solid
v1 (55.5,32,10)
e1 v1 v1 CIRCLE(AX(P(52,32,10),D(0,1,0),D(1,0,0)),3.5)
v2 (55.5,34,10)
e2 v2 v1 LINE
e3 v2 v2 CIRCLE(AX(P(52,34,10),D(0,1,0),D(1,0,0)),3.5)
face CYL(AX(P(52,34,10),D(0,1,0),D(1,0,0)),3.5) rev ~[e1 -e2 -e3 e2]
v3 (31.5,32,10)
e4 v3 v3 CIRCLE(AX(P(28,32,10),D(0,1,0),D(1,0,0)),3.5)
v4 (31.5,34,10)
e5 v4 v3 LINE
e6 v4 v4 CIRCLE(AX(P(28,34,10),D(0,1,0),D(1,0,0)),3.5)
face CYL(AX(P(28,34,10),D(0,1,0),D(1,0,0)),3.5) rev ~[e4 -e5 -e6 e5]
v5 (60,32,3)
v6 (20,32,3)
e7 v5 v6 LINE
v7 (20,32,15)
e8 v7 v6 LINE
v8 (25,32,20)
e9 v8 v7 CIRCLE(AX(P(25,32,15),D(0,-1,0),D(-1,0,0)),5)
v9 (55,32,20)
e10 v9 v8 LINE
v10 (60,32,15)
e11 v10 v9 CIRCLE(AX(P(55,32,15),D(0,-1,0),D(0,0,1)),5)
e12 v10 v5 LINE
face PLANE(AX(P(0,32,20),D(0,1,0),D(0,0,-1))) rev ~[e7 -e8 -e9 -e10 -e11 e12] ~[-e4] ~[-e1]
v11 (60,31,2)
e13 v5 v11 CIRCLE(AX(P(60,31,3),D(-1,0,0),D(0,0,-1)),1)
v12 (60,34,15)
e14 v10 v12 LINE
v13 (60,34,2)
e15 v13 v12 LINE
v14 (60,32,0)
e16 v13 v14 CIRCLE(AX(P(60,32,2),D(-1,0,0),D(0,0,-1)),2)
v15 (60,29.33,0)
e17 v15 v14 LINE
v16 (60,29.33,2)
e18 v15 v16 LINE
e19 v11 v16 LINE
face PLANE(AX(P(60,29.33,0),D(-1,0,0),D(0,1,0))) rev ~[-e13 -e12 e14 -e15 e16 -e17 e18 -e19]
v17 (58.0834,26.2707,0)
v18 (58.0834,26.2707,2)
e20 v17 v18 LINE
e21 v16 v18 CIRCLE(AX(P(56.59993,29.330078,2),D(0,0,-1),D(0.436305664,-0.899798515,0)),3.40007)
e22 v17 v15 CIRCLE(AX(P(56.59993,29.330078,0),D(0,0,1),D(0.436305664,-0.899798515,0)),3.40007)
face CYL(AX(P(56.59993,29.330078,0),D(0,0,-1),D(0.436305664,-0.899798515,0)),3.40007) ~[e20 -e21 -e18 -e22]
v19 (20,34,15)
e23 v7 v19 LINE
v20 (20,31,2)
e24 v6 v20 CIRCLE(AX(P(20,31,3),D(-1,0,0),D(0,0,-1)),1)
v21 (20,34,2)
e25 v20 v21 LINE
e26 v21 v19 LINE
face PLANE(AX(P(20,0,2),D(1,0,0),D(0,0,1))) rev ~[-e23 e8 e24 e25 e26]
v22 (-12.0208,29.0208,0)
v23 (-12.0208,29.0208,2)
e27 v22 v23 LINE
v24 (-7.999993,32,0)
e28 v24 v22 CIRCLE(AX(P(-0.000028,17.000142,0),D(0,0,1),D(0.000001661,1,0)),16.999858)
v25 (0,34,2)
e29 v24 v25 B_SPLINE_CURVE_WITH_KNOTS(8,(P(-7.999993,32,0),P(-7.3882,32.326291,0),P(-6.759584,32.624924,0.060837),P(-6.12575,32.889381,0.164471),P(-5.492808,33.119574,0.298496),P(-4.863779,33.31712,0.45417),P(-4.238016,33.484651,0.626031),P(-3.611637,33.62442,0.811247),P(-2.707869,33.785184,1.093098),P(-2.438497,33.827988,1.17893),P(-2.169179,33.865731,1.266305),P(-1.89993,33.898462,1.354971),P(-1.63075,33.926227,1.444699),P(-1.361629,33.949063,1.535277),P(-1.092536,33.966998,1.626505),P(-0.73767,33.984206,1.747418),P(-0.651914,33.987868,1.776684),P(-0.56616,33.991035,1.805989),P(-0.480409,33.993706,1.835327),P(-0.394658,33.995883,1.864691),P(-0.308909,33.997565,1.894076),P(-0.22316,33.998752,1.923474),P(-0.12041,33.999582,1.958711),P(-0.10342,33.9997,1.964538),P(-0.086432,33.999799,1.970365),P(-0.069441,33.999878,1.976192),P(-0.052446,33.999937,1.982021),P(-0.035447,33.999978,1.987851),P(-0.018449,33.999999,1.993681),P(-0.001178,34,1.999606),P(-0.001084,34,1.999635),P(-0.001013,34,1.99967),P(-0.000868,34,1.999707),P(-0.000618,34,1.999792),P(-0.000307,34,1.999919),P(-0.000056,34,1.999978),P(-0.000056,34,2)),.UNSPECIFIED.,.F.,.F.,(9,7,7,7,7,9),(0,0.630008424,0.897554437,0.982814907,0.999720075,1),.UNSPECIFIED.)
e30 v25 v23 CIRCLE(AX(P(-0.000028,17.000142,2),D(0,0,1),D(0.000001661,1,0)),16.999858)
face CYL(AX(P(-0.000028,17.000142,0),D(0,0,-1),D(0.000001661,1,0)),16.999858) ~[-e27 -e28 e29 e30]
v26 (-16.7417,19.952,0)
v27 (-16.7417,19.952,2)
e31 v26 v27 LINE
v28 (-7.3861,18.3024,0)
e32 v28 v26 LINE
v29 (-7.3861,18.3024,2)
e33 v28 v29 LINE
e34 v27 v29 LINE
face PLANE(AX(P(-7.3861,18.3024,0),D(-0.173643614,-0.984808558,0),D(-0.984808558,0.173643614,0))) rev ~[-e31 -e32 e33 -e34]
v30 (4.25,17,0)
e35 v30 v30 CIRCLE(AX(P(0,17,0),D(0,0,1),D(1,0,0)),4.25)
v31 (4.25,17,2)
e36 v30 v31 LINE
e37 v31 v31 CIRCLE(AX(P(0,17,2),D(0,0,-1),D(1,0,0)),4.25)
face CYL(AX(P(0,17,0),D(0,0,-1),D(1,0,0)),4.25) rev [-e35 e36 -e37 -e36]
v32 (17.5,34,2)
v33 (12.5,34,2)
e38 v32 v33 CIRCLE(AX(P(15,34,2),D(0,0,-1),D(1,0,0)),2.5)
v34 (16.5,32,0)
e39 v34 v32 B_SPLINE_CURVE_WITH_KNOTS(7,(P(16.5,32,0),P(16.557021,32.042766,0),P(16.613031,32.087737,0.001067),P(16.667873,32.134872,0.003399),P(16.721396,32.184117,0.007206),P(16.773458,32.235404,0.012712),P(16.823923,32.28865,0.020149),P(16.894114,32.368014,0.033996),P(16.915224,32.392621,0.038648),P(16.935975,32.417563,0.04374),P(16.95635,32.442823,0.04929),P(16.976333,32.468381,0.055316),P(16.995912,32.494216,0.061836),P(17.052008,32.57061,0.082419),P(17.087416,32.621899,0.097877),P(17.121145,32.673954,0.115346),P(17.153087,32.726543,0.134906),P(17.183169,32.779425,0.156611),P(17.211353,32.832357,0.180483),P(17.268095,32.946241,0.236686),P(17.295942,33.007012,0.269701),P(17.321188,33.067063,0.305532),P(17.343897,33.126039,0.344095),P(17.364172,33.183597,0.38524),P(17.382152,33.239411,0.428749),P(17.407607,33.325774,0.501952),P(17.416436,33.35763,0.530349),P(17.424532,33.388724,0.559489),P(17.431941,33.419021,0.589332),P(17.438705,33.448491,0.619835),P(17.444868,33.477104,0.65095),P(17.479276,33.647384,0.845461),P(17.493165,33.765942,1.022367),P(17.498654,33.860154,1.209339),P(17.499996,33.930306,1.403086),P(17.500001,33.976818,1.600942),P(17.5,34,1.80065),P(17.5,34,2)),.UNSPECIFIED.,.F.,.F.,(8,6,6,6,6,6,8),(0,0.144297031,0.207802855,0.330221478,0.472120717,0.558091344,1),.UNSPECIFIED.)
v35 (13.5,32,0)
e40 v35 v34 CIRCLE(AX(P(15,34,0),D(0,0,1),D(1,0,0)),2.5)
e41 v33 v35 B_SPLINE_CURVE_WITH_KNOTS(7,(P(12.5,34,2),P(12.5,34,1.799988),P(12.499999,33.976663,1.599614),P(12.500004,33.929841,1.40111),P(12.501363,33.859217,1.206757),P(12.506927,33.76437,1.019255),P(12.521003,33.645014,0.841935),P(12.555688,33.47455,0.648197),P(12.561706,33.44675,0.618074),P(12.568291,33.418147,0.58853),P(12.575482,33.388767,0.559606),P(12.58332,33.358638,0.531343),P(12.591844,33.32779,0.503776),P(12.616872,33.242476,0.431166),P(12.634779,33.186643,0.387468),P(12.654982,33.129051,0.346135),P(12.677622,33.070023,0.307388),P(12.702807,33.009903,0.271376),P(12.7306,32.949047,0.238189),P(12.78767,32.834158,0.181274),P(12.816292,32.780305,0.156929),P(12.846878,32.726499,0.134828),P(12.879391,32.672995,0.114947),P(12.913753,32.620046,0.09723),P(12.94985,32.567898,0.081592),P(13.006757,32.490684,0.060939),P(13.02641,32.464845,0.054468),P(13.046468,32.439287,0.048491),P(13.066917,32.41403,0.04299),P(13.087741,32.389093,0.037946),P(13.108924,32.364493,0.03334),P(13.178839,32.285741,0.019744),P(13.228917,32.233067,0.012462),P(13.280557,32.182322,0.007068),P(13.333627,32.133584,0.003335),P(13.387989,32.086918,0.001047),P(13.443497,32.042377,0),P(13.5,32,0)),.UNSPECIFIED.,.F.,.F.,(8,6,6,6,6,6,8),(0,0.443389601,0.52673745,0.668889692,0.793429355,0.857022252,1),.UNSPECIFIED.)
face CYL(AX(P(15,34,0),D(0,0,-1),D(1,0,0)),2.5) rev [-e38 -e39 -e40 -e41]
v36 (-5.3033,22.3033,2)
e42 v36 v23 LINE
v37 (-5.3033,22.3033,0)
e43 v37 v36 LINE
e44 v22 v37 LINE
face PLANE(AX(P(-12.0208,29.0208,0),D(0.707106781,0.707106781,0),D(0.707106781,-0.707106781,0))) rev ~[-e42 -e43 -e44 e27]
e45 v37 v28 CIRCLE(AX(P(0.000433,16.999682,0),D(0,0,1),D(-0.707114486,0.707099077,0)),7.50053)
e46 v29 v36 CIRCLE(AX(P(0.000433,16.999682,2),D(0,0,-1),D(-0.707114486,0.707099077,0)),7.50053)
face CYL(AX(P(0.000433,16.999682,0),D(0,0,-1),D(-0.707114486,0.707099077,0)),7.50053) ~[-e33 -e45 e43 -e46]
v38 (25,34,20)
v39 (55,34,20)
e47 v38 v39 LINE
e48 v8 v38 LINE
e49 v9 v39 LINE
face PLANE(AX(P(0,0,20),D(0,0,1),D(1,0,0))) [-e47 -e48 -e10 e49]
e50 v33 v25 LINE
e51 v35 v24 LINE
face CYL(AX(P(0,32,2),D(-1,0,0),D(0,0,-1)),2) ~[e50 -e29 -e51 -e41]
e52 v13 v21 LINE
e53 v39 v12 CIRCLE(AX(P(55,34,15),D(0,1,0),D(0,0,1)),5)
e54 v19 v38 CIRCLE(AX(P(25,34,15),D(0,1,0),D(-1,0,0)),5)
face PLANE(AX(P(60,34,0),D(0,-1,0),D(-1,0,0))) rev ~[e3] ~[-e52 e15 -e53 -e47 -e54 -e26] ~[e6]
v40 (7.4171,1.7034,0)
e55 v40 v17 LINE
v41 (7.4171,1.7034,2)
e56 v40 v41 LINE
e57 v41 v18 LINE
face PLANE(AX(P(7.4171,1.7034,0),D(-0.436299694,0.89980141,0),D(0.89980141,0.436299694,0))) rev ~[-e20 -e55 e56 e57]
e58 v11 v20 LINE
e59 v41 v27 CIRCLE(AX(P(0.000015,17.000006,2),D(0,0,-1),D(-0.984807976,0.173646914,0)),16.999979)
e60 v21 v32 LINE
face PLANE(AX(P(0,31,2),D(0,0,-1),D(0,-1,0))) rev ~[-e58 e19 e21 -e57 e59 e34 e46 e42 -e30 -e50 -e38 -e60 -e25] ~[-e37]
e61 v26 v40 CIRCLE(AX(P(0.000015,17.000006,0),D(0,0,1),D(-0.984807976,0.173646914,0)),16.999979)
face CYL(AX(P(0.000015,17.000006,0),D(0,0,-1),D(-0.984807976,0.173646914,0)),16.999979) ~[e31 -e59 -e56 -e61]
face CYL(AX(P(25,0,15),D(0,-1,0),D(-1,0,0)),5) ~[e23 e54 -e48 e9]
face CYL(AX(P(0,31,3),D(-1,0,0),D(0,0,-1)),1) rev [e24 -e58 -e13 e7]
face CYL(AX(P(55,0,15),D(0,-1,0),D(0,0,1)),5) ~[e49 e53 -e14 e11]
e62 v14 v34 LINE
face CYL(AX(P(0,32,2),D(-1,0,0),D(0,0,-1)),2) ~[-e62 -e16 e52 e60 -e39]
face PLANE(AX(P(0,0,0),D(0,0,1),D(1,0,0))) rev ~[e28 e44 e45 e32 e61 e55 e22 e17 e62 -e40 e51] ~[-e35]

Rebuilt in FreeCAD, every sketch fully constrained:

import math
import FreeCAD as App
import Part
import Sketcher
Q = App.Units.Quantity

doc = App.newDocument("Part")
body = doc.addObject("PartDesign::Body", "Body")

# Sketch on XY plane
sketch1 = body.newObject("Sketcher::SketchObject", "Sketch")
sketch1.AttachmentSupport = (doc.getObject("XY_Plane"), [""])
sketch1.MapMode = "FlatFace"
sketch1.addGeometry(Part.LineSegment(App.Vector(-7.4, 18.3, 0), App.Vector(-16.7, 20, 0)), False)
sketch1.addGeometry(Part.ArcOfCircle(Part.Circle(App.Vector(0, 17, 0), App.Vector(0, 0, 1), 17), math.radians(170), math.radians(296)), False)
sketch1.addGeometry(Part.LineSegment(App.Vector(7.4, 1.7, 0), App.Vector(58.1, 26.3, 0)), False)
sketch1.addGeometry(Part.ArcOfCircle(Part.Circle(App.Vector(56.6, 29.3, 0), App.Vector(0, 0, 1), 3.4), math.radians(-64), math.radians(0)), False)
sketch1.addGeometry(Part.LineSegment(App.Vector(60, 29.3, 0), App.Vector(60, 34, 0)), False)
sketch1.addGeometry(Part.LineSegment(App.Vector(60, 34, 0), App.Vector(0, 34, 0)), False)
sketch1.addGeometry(Part.ArcOfCircle(Part.Circle(App.Vector(0, 17, 0), App.Vector(0, 0, 1), 17), math.radians(90), math.radians(135)), False)
sketch1.addGeometry(Part.LineSegment(App.Vector(-12, 29, 0), App.Vector(-5.3, 22.3, 0)), False)
sketch1.addGeometry(Part.ArcOfCircle(Part.Circle(App.Vector(0, 17, 0), App.Vector(0, 0, 1), 7.5), math.radians(135), math.radians(170)), False)
sketch1.addGeometry(Part.Circle(App.Vector(0, 17, 0), App.Vector(0, 0, 1), 4.2), False)
sketch1.addConstraint(Sketcher.Constraint("Coincident", 0, 2, 1, 1))
sketch1.addConstraint(Sketcher.Constraint("Tangent", 1, 2, 2, 1))
sketch1.addConstraint(Sketcher.Constraint("Tangent", 2, 2, 3, 1))
sketch1.addConstraint(Sketcher.Constraint("Tangent", 3, 2, 4, 1))
sketch1.addConstraint(Sketcher.Constraint("Coincident", 4, 2, 5, 1))
sketch1.addConstraint(Sketcher.Constraint("Tangent", 5, 2, 6, 1))
sketch1.addConstraint(Sketcher.Constraint("Coincident", 6, 2, 7, 1))
sketch1.addConstraint(Sketcher.Constraint("Coincident", 7, 2, 8, 1))
sketch1.addConstraint(Sketcher.Constraint("Coincident", 8, 2, 0, 1))
sketch1.addConstraint(Sketcher.Constraint("Vertical", 4))
sketch1.addConstraint(Sketcher.Constraint("Horizontal", 5))
sketch1.addConstraint(Sketcher.Constraint("Coincident", 6, 3, 1, 3))
sketch1.addConstraint(Sketcher.Constraint("Coincident", 8, 3, 1, 3))
sketch1.addConstraint(Sketcher.Constraint("Coincident", 9, 3, 1, 3))
sketch1.addConstraint(Sketcher.Constraint("Equal", 1, 6))
sketch1.addConstraint(Sketcher.Constraint("PointOnObject", 1, 3, -2))
sketch1.addConstraint(Sketcher.Constraint("Radius", 1, Q("17 mm")))
sketch1.addConstraint(Sketcher.Constraint("Diameter", 9, Q("8.5 mm")))
sketch1.addConstraint(Sketcher.Constraint("Radius", 3, Q("3.4 mm")))
sketch1.addConstraint(Sketcher.Constraint("Radius", 8, Q("7.5 mm")))
sketch1.addConstraint(Sketcher.Constraint("DistanceX", 5, 2, 5, 1, Q("60 mm")))
sketch1.addConstraint(Sketcher.Constraint("Angle", 0, Q("170.0003 deg")))
sketch1.addConstraint(Sketcher.Constraint("Angle", 7, Q("-45 deg")))
sketch1.addConstraint(Sketcher.Constraint("DistanceY", -1, 1, 1, 3, Q("17 mm")))
sketch1.addConstraint(Sketcher.Constraint("DistanceY", 4, 1, 4, 2, Q("4.67 mm")))
sketch1.addConstraint(Sketcher.Constraint("DistanceY", -1, 1, 0, 2, Q("19.952 mm")))
sketch1.addConstraint(Sketcher.Constraint("DistanceX", 0, 2, 6, 2, Q("4.721 mm")))
pad1 = body.newObject("PartDesign::Pad", "Pad")
pad1.Profile = sketch1
pad1.Length = 20

# Sketch on YZ plane
sketch2 = body.newObject("Sketcher::SketchObject", "Sketch001")
sketch2.AttachmentSupport = (doc.getObject("YZ_Plane"), [""])
sketch2.MapMode = "FlatFace"
sketch2.addGeometry(Part.LineSegment(App.Vector(39, -5, 0), App.Vector(39, 25, 0)), False)
sketch2.addGeometry(Part.LineSegment(App.Vector(39, 25, 0), App.Vector(-5, 25, 0)), False)
sketch2.addGeometry(Part.LineSegment(App.Vector(-5, 25, 0), App.Vector(-5, -5, 0)), False)
sketch2.addGeometry(Part.LineSegment(App.Vector(-5, -5, 0), App.Vector(39, -5, 0)), False)
sketch2.addGeometry(Part.LineSegment(App.Vector(32, 20, 0), App.Vector(34, 20, 0)), False)
sketch2.addGeometry(Part.LineSegment(App.Vector(34, 20, 0), App.Vector(34, 2, 0)), False)
sketch2.addGeometry(Part.ArcOfCircle(Part.Circle(App.Vector(32, 2, 0), App.Vector(0, 0, 1), 2), math.radians(-90), math.radians(0)), False)
sketch2.addGeometry(Part.LineSegment(App.Vector(32, 0, 0), App.Vector(0, 0, 0)), False)
sketch2.addGeometry(Part.LineSegment(App.Vector(0, 0, 0), App.Vector(0, 2, 0)), False)
sketch2.addGeometry(Part.LineSegment(App.Vector(0, 2, 0), App.Vector(31, 2, 0)), False)
sketch2.addGeometry(Part.ArcOfCircle(Part.Circle(App.Vector(31, 3, 0), App.Vector(0, 0, 1), 1), math.radians(-90), math.radians(0)), False)
sketch2.addGeometry(Part.LineSegment(App.Vector(32, 3, 0), App.Vector(32, 20, 0)), False)
sketch2.addConstraint(Sketcher.Constraint("Coincident", 0, 2, 1, 1))
sketch2.addConstraint(Sketcher.Constraint("Coincident", 1, 2, 2, 1))
sketch2.addConstraint(Sketcher.Constraint("Coincident", 2, 2, 3, 1))
sketch2.addConstraint(Sketcher.Constraint("Coincident", 3, 2, 0, 1))
sketch2.addConstraint(Sketcher.Constraint("Coincident", 4, 2, 5, 1))
sketch2.addConstraint(Sketcher.Constraint("Tangent", 5, 2, 6, 2))
sketch2.addConstraint(Sketcher.Constraint("Tangent", 6, 1, 7, 1))
sketch2.addConstraint(Sketcher.Constraint("Coincident", 7, 2, 8, 1))
sketch2.addConstraint(Sketcher.Constraint("Coincident", 8, 2, 9, 1))
sketch2.addConstraint(Sketcher.Constraint("Tangent", 9, 2, 10, 1))
sketch2.addConstraint(Sketcher.Constraint("Tangent", 10, 2, 11, 1))
sketch2.addConstraint(Sketcher.Constraint("Coincident", 11, 2, 4, 1))
sketch2.addConstraint(Sketcher.Constraint("Vertical", 0))
sketch2.addConstraint(Sketcher.Constraint("Horizontal", 1))
sketch2.addConstraint(Sketcher.Constraint("Vertical", 2))
sketch2.addConstraint(Sketcher.Constraint("Horizontal", 3))
sketch2.addConstraint(Sketcher.Constraint("Horizontal", 4))
sketch2.addConstraint(Sketcher.Constraint("Vertical", 5))
sketch2.addConstraint(Sketcher.Constraint("Horizontal", 7))
sketch2.addConstraint(Sketcher.Constraint("Vertical", 8))
sketch2.addConstraint(Sketcher.Constraint("Horizontal", 9))
sketch2.addConstraint(Sketcher.Constraint("Vertical", 11))
sketch2.addConstraint(Sketcher.Constraint("Coincident", 7, 2, -1, 1))
sketch2.addConstraint(Sketcher.Constraint("Horizontal", 5, 2, 8, 2))
sketch2.addConstraint(Sketcher.Constraint("Vertical", 6, 1, 10, 2))
sketch2.addConstraint(Sketcher.Constraint("Radius", 6, Q("2 mm")))
sketch2.addConstraint(Sketcher.Constraint("Radius", 10, Q("1 mm")))
sketch2.addConstraint(Sketcher.Constraint("DistanceX", 1, 2, 1, 1, Q("44 mm")))
sketch2.addConstraint(Sketcher.Constraint("DistanceX", 7, 2, 7, 1, Q("32 mm")))
sketch2.addConstraint(Sketcher.Constraint("DistanceY", 0, 1, 0, 2, Q("30 mm")))
sketch2.addConstraint(Sketcher.Constraint("DistanceY", 5, 2, 5, 1, Q("18 mm")))
sketch2.addConstraint(Sketcher.Constraint("DistanceX", -1, 1, 0, 2, Q("39 mm")))
sketch2.addConstraint(Sketcher.Constraint("DistanceY", -1, 1, 0, 2, Q("25 mm")))
pocket1 = body.newObject("PartDesign::Pocket", "Pocket")
pocket1.Profile = sketch2
pocket1.Length = 188
pocket1.Midplane = True

# Sketch on XZ plane
sketch3 = body.newObject("Sketcher::SketchObject", "Sketch002")
sketch3.AttachmentSupport = (doc.getObject("XZ_Plane"), [""])
sketch3.MapMode = "FlatFace"
sketch3.addGeometry(Part.LineSegment(App.Vector(-22, -5, 0), App.Vector(-22, 25, 0)), False)
sketch3.addGeometry(Part.LineSegment(App.Vector(-22, 25, 0), App.Vector(65, 25, 0)), False)
sketch3.addGeometry(Part.LineSegment(App.Vector(65, 25, 0), App.Vector(65, -5, 0)), False)
sketch3.addGeometry(Part.LineSegment(App.Vector(65, -5, 0), App.Vector(-22, -5, 0)), False)
sketch3.addGeometry(Part.LineSegment(App.Vector(20, 2, 0), App.Vector(-17, 2, 0)), False)
sketch3.addGeometry(Part.LineSegment(App.Vector(-17, 2, 0), App.Vector(-17, 0, 0)), False)
sketch3.addGeometry(Part.LineSegment(App.Vector(-17, 0, 0), App.Vector(60, 0, 0)), False)
sketch3.addGeometry(Part.LineSegment(App.Vector(60, 0, 0), App.Vector(60, 15, 0)), False)
sketch3.addGeometry(Part.ArcOfCircle(Part.Circle(App.Vector(55, 15, 0), App.Vector(0, 0, 1), 5), math.radians(0), math.radians(90)), False)
sketch3.addGeometry(Part.LineSegment(App.Vector(55, 20, 0), App.Vector(25, 20, 0)), False)
sketch3.addGeometry(Part.ArcOfCircle(Part.Circle(App.Vector(25, 15, 0), App.Vector(0, 0, 1), 5), math.radians(90), math.radians(180)), False)
sketch3.addGeometry(Part.LineSegment(App.Vector(20, 15, 0), App.Vector(20, 2, 0)), False)
sketch3.addConstraint(Sketcher.Constraint("Coincident", 0, 2, 1, 1))
sketch3.addConstraint(Sketcher.Constraint("Coincident", 1, 2, 2, 1))
sketch3.addConstraint(Sketcher.Constraint("Coincident", 2, 2, 3, 1))
sketch3.addConstraint(Sketcher.Constraint("Coincident", 3, 2, 0, 1))
sketch3.addConstraint(Sketcher.Constraint("Coincident", 4, 2, 5, 1))
sketch3.addConstraint(Sketcher.Constraint("Coincident", 5, 2, 6, 1))
sketch3.addConstraint(Sketcher.Constraint("Coincident", 6, 2, 7, 1))
sketch3.addConstraint(Sketcher.Constraint("Tangent", 7, 2, 8, 1))
sketch3.addConstraint(Sketcher.Constraint("Tangent", 8, 2, 9, 1))
sketch3.addConstraint(Sketcher.Constraint("Tangent", 9, 2, 10, 1))
sketch3.addConstraint(Sketcher.Constraint("Tangent", 10, 2, 11, 1))
sketch3.addConstraint(Sketcher.Constraint("Coincident", 11, 2, 4, 1))
sketch3.addConstraint(Sketcher.Constraint("Vertical", 0))
sketch3.addConstraint(Sketcher.Constraint("Horizontal", 1))
sketch3.addConstraint(Sketcher.Constraint("Vertical", 2))
sketch3.addConstraint(Sketcher.Constraint("Horizontal", 3))
sketch3.addConstraint(Sketcher.Constraint("Horizontal", 4))
sketch3.addConstraint(Sketcher.Constraint("Vertical", 5))
sketch3.addConstraint(Sketcher.Constraint("Horizontal", 6))
sketch3.addConstraint(Sketcher.Constraint("Vertical", 7))
sketch3.addConstraint(Sketcher.Constraint("Horizontal", 9))
sketch3.addConstraint(Sketcher.Constraint("Vertical", 11))
sketch3.addConstraint(Sketcher.Constraint("Equal", 8, 10))
sketch3.addConstraint(Sketcher.Constraint("PointOnObject", 5, 2, -1))
sketch3.addConstraint(Sketcher.Constraint("Equal", 9, 0))
sketch3.addConstraint(Sketcher.Constraint("Radius", 8, Q("5 mm")))
sketch3.addConstraint(Sketcher.Constraint("DistanceX", 1, 1, 1, 2, Q("87 mm")))
sketch3.addConstraint(Sketcher.Constraint("DistanceX", 4, 2, 4, 1, Q("37 mm")))
sketch3.addConstraint(Sketcher.Constraint("DistanceX", 6, 1, 6, 2, Q("77 mm")))
sketch3.addConstraint(Sketcher.Constraint("DistanceY", 5, 2, 5, 1, Q("2 mm")))
sketch3.addConstraint(Sketcher.Constraint("DistanceY", 7, 1, 7, 2, Q("15 mm")))
sketch3.addConstraint(Sketcher.Constraint("DistanceX", -1, 1, 8, 3, Q("55 mm")))
sketch3.addConstraint(Sketcher.Constraint("DistanceX", 0, 2, -1, 1, Q("22 mm")))
sketch3.addConstraint(Sketcher.Constraint("DistanceY", -1, 1, 0, 2, Q("25 mm")))
pocket2 = body.newObject("PartDesign::Pocket", "Pocket001")
pocket2.Profile = sketch3
pocket2.Length = 34

# Sketch on XZ plane
sketch4 = body.newObject("Sketcher::SketchObject", "Sketch003")
sketch4.AttachmentSupport = (doc.getObject("XZ_Plane"), [""])
sketch4.MapMode = "FlatFace"
sketch4.AttachmentOffset = App.Placement(App.Vector(0, 0, -34), App.Rotation())
sketch4.addGeometry(Part.Circle(App.Vector(28, 10, 0), App.Vector(0, 0, 1), 3.5), False)
sketch4.addConstraint(Sketcher.Constraint("Diameter", 0, Q("7 mm")))
sketch4.addConstraint(Sketcher.Constraint("DistanceX", -1, 1, 0, 3, Q("28 mm")))
sketch4.addConstraint(Sketcher.Constraint("DistanceY", -1, 1, 0, 3, Q("10 mm")))
pocket3 = body.newObject("PartDesign::Pocket", "Pocket002")
pocket3.Profile = sketch4
pocket3.Length = 4
pocket3.Midplane = True

# Sketch on XZ plane
sketch5 = body.newObject("Sketcher::SketchObject", "Sketch004")
sketch5.AttachmentSupport = (doc.getObject("XZ_Plane"), [""])
sketch5.MapMode = "FlatFace"
sketch5.AttachmentOffset = App.Placement(App.Vector(0, 0, -34), App.Rotation())
sketch5.addGeometry(Part.Circle(App.Vector(52, 10, 0), App.Vector(0, 0, 1), 3.5), False)
sketch5.addConstraint(Sketcher.Constraint("Diameter", 0, Q("7 mm")))
sketch5.addConstraint(Sketcher.Constraint("DistanceX", -1, 1, 0, 3, Q("52 mm")))
sketch5.addConstraint(Sketcher.Constraint("DistanceY", -1, 1, 0, 3, Q("10 mm")))
pocket4 = body.newObject("PartDesign::Pocket", "Pocket003")
pocket4.Profile = sketch5
pocket4.Length = 4
pocket4.Midplane = True

# Sketch on XY plane
sketch6 = body.newObject("Sketcher::SketchObject", "Sketch005")
sketch6.AttachmentSupport = (doc.getObject("XY_Plane"), [""])
sketch6.MapMode = "FlatFace"
sketch6.addGeometry(Part.Circle(App.Vector(15, 34, 0), App.Vector(0, 0, 1), 2.5), False)
sketch6.addConstraint(Sketcher.Constraint("Diameter", 0, Q("5 mm")))
sketch6.addConstraint(Sketcher.Constraint("DistanceX", -1, 1, 0, 3, Q("15 mm")))
sketch6.addConstraint(Sketcher.Constraint("DistanceY", -1, 1, 0, 3, Q("34 mm")))
pocket5 = body.newObject("PartDesign::Pocket", "Pocket004")
pocket5.Profile = sketch6
pocket5.Length = 20
pocket5.Reversed = True

doc.recompute()
